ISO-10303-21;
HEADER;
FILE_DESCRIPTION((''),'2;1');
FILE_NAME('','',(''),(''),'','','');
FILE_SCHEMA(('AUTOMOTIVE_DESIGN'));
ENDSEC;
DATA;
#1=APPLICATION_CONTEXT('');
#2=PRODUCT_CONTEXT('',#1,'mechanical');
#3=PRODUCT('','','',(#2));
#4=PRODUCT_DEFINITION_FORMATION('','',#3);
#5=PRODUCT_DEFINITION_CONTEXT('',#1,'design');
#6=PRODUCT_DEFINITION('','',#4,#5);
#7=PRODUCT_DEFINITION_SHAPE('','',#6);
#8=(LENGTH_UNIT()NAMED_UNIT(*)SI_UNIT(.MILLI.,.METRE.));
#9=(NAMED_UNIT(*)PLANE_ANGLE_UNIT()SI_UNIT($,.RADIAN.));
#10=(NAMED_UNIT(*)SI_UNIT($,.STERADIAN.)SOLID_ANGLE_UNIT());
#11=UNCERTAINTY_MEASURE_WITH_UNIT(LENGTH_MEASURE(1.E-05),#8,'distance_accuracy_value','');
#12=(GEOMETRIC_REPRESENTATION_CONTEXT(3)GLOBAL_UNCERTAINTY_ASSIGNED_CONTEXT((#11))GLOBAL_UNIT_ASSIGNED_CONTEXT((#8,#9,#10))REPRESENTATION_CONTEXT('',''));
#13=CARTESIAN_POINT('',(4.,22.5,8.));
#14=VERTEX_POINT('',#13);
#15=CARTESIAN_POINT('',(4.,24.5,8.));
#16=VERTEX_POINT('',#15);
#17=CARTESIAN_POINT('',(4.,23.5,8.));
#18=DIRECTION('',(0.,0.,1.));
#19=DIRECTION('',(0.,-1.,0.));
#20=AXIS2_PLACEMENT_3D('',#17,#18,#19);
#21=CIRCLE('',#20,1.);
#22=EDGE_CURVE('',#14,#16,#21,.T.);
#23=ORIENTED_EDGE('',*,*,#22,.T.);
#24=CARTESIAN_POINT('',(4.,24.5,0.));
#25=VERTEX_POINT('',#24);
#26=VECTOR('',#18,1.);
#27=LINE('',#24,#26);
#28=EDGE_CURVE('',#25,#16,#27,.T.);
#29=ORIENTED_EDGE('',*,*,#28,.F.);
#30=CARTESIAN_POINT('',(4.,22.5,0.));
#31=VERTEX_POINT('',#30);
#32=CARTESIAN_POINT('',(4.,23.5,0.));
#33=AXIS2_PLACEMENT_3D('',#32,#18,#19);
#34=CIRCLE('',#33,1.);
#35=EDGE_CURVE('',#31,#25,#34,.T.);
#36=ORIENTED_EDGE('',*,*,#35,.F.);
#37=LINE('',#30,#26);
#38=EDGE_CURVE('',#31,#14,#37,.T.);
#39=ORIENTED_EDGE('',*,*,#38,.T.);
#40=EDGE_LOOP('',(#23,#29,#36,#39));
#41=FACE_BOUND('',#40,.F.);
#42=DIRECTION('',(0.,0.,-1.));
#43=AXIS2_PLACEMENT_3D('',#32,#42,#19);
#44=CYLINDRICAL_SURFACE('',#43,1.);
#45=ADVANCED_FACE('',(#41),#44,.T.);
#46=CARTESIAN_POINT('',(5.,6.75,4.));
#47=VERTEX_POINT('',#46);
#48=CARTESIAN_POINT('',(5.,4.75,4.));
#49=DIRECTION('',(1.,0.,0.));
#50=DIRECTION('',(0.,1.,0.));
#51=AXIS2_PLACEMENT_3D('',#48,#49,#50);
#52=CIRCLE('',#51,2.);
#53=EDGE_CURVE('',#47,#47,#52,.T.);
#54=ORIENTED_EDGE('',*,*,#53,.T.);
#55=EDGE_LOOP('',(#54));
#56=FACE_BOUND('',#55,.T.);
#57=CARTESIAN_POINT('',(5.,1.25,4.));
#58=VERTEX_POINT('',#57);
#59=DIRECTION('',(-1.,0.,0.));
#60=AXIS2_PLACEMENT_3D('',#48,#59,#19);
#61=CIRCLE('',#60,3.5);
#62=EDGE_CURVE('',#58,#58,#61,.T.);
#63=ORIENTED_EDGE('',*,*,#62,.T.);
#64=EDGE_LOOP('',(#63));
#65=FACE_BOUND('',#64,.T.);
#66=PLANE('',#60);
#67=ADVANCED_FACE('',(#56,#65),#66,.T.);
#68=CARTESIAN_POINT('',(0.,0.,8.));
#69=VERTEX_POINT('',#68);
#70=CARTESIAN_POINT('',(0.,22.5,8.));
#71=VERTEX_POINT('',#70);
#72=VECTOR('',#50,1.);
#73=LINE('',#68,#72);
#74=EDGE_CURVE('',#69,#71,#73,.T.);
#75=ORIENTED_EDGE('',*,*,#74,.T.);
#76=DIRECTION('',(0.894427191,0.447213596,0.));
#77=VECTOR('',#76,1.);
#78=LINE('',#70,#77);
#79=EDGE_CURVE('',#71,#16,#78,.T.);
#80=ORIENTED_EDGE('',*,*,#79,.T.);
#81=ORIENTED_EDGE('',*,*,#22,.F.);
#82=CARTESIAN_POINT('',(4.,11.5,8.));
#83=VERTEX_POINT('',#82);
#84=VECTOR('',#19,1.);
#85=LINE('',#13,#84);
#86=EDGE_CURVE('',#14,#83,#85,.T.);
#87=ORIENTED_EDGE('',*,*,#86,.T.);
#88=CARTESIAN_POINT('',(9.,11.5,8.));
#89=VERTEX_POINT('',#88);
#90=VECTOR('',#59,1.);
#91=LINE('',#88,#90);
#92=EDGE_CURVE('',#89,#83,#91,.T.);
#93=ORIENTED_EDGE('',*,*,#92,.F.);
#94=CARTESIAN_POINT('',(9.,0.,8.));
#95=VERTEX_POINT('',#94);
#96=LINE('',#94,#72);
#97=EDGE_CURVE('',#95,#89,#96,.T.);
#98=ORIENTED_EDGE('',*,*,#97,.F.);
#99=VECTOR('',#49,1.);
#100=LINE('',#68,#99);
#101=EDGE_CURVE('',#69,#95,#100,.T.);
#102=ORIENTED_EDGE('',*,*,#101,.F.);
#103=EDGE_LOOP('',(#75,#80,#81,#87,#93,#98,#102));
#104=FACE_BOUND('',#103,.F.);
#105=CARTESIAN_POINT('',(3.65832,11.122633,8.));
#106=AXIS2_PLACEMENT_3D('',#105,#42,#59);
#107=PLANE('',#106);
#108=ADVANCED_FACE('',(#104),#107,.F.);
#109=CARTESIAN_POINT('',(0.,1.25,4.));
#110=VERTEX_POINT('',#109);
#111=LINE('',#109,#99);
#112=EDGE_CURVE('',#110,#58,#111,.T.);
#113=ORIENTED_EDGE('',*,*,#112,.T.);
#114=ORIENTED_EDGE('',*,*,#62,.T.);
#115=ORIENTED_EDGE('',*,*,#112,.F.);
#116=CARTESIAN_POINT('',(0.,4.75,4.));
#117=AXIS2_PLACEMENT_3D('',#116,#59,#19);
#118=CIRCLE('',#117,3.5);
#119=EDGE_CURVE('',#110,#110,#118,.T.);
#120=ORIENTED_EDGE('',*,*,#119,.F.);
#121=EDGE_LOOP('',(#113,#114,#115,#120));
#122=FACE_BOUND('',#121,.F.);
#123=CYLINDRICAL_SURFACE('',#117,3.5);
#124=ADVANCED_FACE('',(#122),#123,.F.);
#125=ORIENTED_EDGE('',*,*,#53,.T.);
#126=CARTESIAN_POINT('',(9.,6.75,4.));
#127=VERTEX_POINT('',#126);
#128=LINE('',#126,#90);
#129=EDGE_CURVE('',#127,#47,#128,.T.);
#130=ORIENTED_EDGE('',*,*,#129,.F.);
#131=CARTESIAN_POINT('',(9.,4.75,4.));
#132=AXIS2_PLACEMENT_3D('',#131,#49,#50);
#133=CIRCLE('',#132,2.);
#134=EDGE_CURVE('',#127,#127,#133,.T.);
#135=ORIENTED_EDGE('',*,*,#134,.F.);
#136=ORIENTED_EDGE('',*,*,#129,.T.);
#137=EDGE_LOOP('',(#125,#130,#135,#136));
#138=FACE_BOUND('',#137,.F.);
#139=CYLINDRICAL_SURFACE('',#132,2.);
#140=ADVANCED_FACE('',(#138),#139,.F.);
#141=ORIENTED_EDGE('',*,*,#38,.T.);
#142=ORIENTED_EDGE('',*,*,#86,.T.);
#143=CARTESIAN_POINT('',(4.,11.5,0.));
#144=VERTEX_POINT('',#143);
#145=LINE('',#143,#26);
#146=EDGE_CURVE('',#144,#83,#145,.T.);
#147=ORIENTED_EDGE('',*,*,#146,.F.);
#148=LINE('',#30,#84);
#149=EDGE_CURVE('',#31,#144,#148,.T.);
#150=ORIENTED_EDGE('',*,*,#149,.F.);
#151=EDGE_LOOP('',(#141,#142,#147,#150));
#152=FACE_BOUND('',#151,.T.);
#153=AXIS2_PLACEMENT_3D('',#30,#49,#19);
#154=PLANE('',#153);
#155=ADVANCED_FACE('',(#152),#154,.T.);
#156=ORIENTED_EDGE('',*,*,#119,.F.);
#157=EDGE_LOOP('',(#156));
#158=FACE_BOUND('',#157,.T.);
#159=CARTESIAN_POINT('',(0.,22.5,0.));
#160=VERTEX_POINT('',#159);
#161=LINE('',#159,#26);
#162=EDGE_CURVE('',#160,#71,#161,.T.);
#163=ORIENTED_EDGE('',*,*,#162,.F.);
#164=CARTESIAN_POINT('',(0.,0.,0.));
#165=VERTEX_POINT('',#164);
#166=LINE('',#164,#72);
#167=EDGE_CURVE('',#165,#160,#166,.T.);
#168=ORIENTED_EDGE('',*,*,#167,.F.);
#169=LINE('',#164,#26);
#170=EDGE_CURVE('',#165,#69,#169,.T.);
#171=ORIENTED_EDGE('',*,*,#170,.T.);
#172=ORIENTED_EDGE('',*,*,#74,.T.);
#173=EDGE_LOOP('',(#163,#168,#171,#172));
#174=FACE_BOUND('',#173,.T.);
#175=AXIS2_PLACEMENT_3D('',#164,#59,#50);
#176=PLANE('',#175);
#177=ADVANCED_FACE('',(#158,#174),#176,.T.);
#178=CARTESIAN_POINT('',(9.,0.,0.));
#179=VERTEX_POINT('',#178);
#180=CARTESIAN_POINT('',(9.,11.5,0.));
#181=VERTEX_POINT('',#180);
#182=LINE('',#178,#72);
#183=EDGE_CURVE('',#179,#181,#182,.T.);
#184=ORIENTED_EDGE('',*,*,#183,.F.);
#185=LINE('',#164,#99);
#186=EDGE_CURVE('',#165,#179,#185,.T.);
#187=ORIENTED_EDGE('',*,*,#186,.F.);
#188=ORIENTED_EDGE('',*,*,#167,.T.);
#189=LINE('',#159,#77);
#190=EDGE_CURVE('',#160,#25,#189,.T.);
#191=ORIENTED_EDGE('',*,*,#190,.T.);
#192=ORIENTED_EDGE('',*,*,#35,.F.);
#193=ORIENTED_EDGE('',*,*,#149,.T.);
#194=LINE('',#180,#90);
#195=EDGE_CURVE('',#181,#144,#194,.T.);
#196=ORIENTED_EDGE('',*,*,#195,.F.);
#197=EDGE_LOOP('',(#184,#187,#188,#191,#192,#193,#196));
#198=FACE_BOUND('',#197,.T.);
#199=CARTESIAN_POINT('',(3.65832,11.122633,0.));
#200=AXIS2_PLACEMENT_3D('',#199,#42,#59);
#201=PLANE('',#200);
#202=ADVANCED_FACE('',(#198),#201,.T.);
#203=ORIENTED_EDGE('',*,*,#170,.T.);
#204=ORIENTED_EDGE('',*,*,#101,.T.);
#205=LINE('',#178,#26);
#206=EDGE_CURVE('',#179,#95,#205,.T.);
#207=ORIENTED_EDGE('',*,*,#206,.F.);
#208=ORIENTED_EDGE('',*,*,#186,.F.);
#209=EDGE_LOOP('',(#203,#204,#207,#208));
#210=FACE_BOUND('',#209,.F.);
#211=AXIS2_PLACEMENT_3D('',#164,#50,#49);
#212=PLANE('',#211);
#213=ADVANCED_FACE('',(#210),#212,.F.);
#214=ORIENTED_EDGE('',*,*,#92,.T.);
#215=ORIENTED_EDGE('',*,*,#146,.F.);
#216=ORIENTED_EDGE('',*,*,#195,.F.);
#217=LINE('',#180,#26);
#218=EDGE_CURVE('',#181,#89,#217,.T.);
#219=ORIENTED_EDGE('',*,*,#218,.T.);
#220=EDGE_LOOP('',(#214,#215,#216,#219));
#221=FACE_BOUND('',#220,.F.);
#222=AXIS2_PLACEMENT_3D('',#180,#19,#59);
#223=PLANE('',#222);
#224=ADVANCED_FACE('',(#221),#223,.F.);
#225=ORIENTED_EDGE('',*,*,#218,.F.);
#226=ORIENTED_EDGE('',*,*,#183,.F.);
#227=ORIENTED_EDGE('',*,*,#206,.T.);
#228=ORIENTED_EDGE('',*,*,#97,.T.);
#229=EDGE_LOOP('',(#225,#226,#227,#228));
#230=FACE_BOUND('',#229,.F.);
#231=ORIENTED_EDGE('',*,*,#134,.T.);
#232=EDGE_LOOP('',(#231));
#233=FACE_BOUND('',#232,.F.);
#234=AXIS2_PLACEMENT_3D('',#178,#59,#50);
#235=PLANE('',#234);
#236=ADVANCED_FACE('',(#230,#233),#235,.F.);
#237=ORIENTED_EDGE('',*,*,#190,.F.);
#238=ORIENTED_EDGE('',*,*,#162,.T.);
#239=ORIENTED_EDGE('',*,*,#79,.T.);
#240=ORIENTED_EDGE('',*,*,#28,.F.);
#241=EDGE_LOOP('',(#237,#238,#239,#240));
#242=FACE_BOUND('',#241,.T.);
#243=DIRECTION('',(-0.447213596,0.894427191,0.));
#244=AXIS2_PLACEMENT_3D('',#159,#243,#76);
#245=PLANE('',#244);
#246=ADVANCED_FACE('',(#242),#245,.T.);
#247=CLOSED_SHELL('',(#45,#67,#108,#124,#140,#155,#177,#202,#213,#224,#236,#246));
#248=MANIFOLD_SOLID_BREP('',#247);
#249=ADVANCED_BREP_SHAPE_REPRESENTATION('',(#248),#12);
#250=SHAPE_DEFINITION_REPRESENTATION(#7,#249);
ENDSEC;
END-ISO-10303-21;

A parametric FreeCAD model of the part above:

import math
import FreeCAD as App
import Part
import Sketcher
Q = App.Units.Quantity

doc = App.newDocument("Part")
params = doc.addObject("Spreadsheet::Sheet", "Params")
for row, (alias, value) in enumerate([
    ("sketch1_radius", "1 mm"),
    ("sketch1_width", "9 mm"),
    ("sketch1_width2", "5 mm"),
    ("sketch1_height", "11 mm"),
    ("sketch1_height2", "22.5 mm"),
    ("pad1_length", "8 mm"),
    ("sketch2_diameter", "4 mm"),
    ("pocket1_length", "9 mm"),
    ("sketch3_diameter", "7 mm"),
    ("pocket2_length", "5 mm"),
], start=1):
    params.set(f"A{row}", alias)
    params.set(f"B{row}", "=" + value)
    params.setAlias(f"B{row}", alias)

body = doc.addObject("PartDesign::Body", "Body")

# Sketch on XY plane
sketch1 = body.newObject("Sketcher::SketchObject", "Sketch")
sketch1.AttachmentSupport = (doc.getObject("XY_Plane"), [""])
sketch1.MapMode = "FlatFace"
sketch1.addGeometry([
    Part.LineSegment(App.Vector(0, 22.5, 0), App.Vector(0, 0, 0)),  # 0
    Part.LineSegment(App.Vector(0, 0, 0), App.Vector(9, 0, 0)),  # 1
    Part.LineSegment(App.Vector(9, 0, 0), App.Vector(9, 11.5, 0)),  # 2
    Part.LineSegment(App.Vector(9, 11.5, 0), App.Vector(4, 11.5, 0)),  # 3
    Part.LineSegment(App.Vector(4, 11.5, 0), App.Vector(4, 22.5, 0)),  # 4
    Part.ArcOfCircle(Part.Circle(App.Vector(4, 23.5, 0), App.Vector(0, 0, 1), 1), math.radians(-90), math.radians(90)),  # 5
    Part.LineSegment(App.Vector(4, 24.5, 0), App.Vector(0, 22.5, 0)),  # 6
], False)
sketch1.addConstraint([
    Sketcher.Constraint("Coincident", 0, 2, 1, 1),
    Sketcher.Constraint("Coincident", 1, 2, 2, 1),
    Sketcher.Constraint("Coincident", 2, 2, 3, 1),
    Sketcher.Constraint("Coincident", 3, 2, 4, 1),
    Sketcher.Constraint("Coincident", 4, 2, 5, 1),
    Sketcher.Constraint("Coincident", 5, 2, 6, 1),
    Sketcher.Constraint("Coincident", 6, 2, 0, 1),
    Sketcher.Constraint("Vertical", 0),
    Sketcher.Constraint("Horizontal", 1),
    Sketcher.Constraint("Vertical", 2),
    Sketcher.Constraint("Horizontal", 3),
    Sketcher.Constraint("Vertical", 4),
    Sketcher.Constraint("Coincident", 0, 2, -1, 1),
    Sketcher.Constraint("Horizontal", 4, 2, 6, 2),
    Sketcher.Constraint("Vertical", 5, 3, 3, 2),
    Sketcher.Constraint("Vertical", 4, 2, 5, 2),
    Sketcher.Constraint("Radius", 5, Q("1 mm")),
    Sketcher.Constraint("DistanceX", 1, 1, 1, 2, Q("9 mm")),
    Sketcher.Constraint("DistanceX", 3, 2, 3, 1, Q("5 mm")),
    Sketcher.Constraint("DistanceY", 4, 1, 4, 2, Q("11 mm")),
    Sketcher.Constraint("DistanceY", 0, 2, 0, 1, Q("22.5 mm")),
])
sketch1.setExpression("Constraints[16]", "Params.sketch1_radius")
sketch1.setExpression("Constraints[17]", "Params.sketch1_width")
sketch1.setExpression("Constraints[18]", "Params.sketch1_width2")
sketch1.setExpression("Constraints[19]", "Params.sketch1_height")
sketch1.setExpression("Constraints[20]", "Params.sketch1_height2")
pad1 = body.newObject("PartDesign::Pad", "Pad")
pad1.Profile = sketch1
pad1.setExpression("Length", "Params.pad1_length")

# Sketch on YZ plane
sketch2 = body.newObject("Sketcher::SketchObject", "Sketch001")
sketch2.AttachmentSupport = (doc.getObject("YZ_Plane"), [""])
sketch2.MapMode = "FlatFace"
sketch2.AttachmentOffset = App.Placement(App.Vector(0, 0, 9), App.Rotation())
sketch2.addGeometry(Part.Circle(App.Vector(4.8, 4, 0), App.Vector(0, 0, 1), 2), False)
sketch2.addConstraint([
    Sketcher.Constraint("Diameter", 0, Q("4 mm")),
    Sketcher.Constraint("DistanceY", -1, 1, 0, 3, Q("4 mm")),
    Sketcher.Constraint("DistanceX", -1, 1, 0, 3, Q("4.75 mm")),
])
sketch2.setExpression("Constraints[0]", "Params.sketch2_diameter")
pocket1 = body.newObject("PartDesign::Pocket", "Pocket")
pocket1.Profile = sketch2
pocket1.setExpression("Length", "Params.pocket1_length")

# Sketch on YZ plane
sketch3 = body.newObject("Sketcher::SketchObject", "Sketch002")
sketch3.AttachmentSupport = (doc.getObject("YZ_Plane"), [""])
sketch3.MapMode = "FlatFace"
sketch3.addGeometry(Part.Circle(App.Vector(4.8, 4, 0), App.Vector(0, 0, 1), 3.5), False)
sketch3.addConstraint([
    Sketcher.Constraint("Diameter", 0, Q("7 mm")),
    Sketcher.Constraint("DistanceY", -1, 1, 0, 3, Q("4 mm")),
    Sketcher.Constraint("DistanceX", -1, 1, 0, 3, Q("4.75 mm")),
])
sketch3.setExpression("Constraints[0]", "Params.sketch3_diameter")
pocket2 = body.newObject("PartDesign::Pocket", "Pocket001")
pocket2.Profile = sketch3
pocket2.setExpression("Length", "Params.pocket2_length")
pocket2.Reversed = True

doc.recompute()
